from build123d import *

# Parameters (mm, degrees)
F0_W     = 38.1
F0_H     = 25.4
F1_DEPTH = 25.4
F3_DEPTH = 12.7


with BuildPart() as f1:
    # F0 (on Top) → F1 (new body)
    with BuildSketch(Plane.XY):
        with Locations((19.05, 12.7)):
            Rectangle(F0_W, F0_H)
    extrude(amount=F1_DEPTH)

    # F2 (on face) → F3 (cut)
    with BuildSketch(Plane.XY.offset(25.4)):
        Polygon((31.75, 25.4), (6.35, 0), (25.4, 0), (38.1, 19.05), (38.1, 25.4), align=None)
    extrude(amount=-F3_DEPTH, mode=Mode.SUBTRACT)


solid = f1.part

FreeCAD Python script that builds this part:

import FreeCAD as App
import Part
import Sketcher

V = App.Vector
Q = App.Units.Quantity


def add_polygon(sketch, points):
    """Adds a closed chain of lines whose ends are joined by coincident constraints."""
    first, n = sketch.GeometryCount, len(points)
    for a, b in zip(points, points[1:] + points[:1]):
        sketch.addGeometry(Part.LineSegment(App.Vector(*a, 0), App.Vector(*b, 0)), False)
    for i in range(n):
        sketch.addConstraint(Sketcher.Constraint("Coincident", first + i, 2, first + (i + 1) % n, 1))

doc = App.newDocument("Part")
params = doc.addObject("Spreadsheet::Sheet", "Params")
for row, (alias, value) in enumerate([
    ("sketch1_height", "1 in"),
    ("sketch1_width", "1.5 in"),
    ("pad1_length", "1 in"),
    ("sketch2_width", "0.75 in"),
    ("sketch2_width2", "0.25 in"),
    ("pocket1_length", "0.5 in"),
], start=1):
    params.set(f"A{row}", alias)
    params.set(f"B{row}", "=" + value)
    params.setAlias(f"B{row}", alias)

body = doc.addObject("PartDesign::Body", "Body")

sketch1 = body.newObject("Sketcher::SketchObject", "Sketch")
sketch1.AttachmentSupport = (doc.getObject("XY_Plane"), [""])
sketch1.MapMode = "FlatFace"
add_polygon(sketch1, [(0, 25), (0, 0), (38, 0), (38, 25)])
sketch1.addConstraint(Sketcher.Constraint("Vertical", 0))
sketch1.addConstraint(Sketcher.Constraint("Horizontal", 1))
sketch1.addConstraint(Sketcher.Constraint("Vertical", 2))
sketch1.addConstraint(Sketcher.Constraint("Horizontal", 3))
sketch1.addConstraint(Sketcher.Constraint("Coincident", 0, 2, -1, 1))
sketch1.addConstraint(Sketcher.Constraint("DistanceY", 0, 2, 0, 1, Q("1 in")))
sketch1.addConstraint(Sketcher.Constraint("DistanceX", 1, 1, 1, 2, Q("1.5 in")))
sketch1.setExpression("Constraints[9]", "Params.sketch1_height")
sketch1.setExpression("Constraints[10]", "Params.sketch1_width")
pad1 = body.newObject("PartDesign::Pad", "Pad")
pad1.Profile = sketch1
pad1.setExpression("Length", "Params.pad1_length")

sketch2 = body.newObject("Sketcher::SketchObject", "Sketch001")
sketch2.AttachmentSupport = (doc.getObject("XY_Plane"), [""])
sketch2.MapMode = "FlatFace"
sketch2.AttachmentOffset = App.Placement(V(0, 0, 1 * 25.4), App.Rotation())
add_polygon(sketch2, [(32, 25), (6, 0), (25, 0), (38, 19), (38, 25)])
sketch2.addConstraint(Sketcher.Constraint("Horizontal", 1))
sketch2.addConstraint(Sketcher.Constraint("Vertical", 3))
sketch2.addConstraint(Sketcher.Constraint("Horizontal", 4))
sketch2.addConstraint(Sketcher.Constraint("PointOnObject", 0, 2, -1))
sketch2.addConstraint(Sketcher.Constraint("Equal", 4, 3))
sketch2.addConstraint(Sketcher.Constraint("DistanceX", -1, 1, 1, 2, Q("1 in")))
sketch2.addConstraint(Sketcher.Constraint("DistanceY", -1, 1, 3, 2, Q("1 in")))
sketch2.addConstraint(Sketcher.Constraint("Angle", 0, Q("-135 deg")))
sketch2.addConstraint(Sketcher.Constraint("DistanceX", 1, 1, 1, 2, Q("0.75 in")))
sketch2.addConstraint(Sketcher.Constraint("DistanceX", 4, 2, 4, 1, Q("0.25 in")))
sketch2.setExpression("Constraints[13]", "Params.sketch2_width")
sketch2.setExpression("Constraints[14]", "Params.sketch2_width2")
pocket1 = body.newObject("PartDesign::Pocket", "Pocket")
pocket1.Profile = sketch2
pocket1.setExpression("Length", "Params.pocket1_length")

doc.recompute()
